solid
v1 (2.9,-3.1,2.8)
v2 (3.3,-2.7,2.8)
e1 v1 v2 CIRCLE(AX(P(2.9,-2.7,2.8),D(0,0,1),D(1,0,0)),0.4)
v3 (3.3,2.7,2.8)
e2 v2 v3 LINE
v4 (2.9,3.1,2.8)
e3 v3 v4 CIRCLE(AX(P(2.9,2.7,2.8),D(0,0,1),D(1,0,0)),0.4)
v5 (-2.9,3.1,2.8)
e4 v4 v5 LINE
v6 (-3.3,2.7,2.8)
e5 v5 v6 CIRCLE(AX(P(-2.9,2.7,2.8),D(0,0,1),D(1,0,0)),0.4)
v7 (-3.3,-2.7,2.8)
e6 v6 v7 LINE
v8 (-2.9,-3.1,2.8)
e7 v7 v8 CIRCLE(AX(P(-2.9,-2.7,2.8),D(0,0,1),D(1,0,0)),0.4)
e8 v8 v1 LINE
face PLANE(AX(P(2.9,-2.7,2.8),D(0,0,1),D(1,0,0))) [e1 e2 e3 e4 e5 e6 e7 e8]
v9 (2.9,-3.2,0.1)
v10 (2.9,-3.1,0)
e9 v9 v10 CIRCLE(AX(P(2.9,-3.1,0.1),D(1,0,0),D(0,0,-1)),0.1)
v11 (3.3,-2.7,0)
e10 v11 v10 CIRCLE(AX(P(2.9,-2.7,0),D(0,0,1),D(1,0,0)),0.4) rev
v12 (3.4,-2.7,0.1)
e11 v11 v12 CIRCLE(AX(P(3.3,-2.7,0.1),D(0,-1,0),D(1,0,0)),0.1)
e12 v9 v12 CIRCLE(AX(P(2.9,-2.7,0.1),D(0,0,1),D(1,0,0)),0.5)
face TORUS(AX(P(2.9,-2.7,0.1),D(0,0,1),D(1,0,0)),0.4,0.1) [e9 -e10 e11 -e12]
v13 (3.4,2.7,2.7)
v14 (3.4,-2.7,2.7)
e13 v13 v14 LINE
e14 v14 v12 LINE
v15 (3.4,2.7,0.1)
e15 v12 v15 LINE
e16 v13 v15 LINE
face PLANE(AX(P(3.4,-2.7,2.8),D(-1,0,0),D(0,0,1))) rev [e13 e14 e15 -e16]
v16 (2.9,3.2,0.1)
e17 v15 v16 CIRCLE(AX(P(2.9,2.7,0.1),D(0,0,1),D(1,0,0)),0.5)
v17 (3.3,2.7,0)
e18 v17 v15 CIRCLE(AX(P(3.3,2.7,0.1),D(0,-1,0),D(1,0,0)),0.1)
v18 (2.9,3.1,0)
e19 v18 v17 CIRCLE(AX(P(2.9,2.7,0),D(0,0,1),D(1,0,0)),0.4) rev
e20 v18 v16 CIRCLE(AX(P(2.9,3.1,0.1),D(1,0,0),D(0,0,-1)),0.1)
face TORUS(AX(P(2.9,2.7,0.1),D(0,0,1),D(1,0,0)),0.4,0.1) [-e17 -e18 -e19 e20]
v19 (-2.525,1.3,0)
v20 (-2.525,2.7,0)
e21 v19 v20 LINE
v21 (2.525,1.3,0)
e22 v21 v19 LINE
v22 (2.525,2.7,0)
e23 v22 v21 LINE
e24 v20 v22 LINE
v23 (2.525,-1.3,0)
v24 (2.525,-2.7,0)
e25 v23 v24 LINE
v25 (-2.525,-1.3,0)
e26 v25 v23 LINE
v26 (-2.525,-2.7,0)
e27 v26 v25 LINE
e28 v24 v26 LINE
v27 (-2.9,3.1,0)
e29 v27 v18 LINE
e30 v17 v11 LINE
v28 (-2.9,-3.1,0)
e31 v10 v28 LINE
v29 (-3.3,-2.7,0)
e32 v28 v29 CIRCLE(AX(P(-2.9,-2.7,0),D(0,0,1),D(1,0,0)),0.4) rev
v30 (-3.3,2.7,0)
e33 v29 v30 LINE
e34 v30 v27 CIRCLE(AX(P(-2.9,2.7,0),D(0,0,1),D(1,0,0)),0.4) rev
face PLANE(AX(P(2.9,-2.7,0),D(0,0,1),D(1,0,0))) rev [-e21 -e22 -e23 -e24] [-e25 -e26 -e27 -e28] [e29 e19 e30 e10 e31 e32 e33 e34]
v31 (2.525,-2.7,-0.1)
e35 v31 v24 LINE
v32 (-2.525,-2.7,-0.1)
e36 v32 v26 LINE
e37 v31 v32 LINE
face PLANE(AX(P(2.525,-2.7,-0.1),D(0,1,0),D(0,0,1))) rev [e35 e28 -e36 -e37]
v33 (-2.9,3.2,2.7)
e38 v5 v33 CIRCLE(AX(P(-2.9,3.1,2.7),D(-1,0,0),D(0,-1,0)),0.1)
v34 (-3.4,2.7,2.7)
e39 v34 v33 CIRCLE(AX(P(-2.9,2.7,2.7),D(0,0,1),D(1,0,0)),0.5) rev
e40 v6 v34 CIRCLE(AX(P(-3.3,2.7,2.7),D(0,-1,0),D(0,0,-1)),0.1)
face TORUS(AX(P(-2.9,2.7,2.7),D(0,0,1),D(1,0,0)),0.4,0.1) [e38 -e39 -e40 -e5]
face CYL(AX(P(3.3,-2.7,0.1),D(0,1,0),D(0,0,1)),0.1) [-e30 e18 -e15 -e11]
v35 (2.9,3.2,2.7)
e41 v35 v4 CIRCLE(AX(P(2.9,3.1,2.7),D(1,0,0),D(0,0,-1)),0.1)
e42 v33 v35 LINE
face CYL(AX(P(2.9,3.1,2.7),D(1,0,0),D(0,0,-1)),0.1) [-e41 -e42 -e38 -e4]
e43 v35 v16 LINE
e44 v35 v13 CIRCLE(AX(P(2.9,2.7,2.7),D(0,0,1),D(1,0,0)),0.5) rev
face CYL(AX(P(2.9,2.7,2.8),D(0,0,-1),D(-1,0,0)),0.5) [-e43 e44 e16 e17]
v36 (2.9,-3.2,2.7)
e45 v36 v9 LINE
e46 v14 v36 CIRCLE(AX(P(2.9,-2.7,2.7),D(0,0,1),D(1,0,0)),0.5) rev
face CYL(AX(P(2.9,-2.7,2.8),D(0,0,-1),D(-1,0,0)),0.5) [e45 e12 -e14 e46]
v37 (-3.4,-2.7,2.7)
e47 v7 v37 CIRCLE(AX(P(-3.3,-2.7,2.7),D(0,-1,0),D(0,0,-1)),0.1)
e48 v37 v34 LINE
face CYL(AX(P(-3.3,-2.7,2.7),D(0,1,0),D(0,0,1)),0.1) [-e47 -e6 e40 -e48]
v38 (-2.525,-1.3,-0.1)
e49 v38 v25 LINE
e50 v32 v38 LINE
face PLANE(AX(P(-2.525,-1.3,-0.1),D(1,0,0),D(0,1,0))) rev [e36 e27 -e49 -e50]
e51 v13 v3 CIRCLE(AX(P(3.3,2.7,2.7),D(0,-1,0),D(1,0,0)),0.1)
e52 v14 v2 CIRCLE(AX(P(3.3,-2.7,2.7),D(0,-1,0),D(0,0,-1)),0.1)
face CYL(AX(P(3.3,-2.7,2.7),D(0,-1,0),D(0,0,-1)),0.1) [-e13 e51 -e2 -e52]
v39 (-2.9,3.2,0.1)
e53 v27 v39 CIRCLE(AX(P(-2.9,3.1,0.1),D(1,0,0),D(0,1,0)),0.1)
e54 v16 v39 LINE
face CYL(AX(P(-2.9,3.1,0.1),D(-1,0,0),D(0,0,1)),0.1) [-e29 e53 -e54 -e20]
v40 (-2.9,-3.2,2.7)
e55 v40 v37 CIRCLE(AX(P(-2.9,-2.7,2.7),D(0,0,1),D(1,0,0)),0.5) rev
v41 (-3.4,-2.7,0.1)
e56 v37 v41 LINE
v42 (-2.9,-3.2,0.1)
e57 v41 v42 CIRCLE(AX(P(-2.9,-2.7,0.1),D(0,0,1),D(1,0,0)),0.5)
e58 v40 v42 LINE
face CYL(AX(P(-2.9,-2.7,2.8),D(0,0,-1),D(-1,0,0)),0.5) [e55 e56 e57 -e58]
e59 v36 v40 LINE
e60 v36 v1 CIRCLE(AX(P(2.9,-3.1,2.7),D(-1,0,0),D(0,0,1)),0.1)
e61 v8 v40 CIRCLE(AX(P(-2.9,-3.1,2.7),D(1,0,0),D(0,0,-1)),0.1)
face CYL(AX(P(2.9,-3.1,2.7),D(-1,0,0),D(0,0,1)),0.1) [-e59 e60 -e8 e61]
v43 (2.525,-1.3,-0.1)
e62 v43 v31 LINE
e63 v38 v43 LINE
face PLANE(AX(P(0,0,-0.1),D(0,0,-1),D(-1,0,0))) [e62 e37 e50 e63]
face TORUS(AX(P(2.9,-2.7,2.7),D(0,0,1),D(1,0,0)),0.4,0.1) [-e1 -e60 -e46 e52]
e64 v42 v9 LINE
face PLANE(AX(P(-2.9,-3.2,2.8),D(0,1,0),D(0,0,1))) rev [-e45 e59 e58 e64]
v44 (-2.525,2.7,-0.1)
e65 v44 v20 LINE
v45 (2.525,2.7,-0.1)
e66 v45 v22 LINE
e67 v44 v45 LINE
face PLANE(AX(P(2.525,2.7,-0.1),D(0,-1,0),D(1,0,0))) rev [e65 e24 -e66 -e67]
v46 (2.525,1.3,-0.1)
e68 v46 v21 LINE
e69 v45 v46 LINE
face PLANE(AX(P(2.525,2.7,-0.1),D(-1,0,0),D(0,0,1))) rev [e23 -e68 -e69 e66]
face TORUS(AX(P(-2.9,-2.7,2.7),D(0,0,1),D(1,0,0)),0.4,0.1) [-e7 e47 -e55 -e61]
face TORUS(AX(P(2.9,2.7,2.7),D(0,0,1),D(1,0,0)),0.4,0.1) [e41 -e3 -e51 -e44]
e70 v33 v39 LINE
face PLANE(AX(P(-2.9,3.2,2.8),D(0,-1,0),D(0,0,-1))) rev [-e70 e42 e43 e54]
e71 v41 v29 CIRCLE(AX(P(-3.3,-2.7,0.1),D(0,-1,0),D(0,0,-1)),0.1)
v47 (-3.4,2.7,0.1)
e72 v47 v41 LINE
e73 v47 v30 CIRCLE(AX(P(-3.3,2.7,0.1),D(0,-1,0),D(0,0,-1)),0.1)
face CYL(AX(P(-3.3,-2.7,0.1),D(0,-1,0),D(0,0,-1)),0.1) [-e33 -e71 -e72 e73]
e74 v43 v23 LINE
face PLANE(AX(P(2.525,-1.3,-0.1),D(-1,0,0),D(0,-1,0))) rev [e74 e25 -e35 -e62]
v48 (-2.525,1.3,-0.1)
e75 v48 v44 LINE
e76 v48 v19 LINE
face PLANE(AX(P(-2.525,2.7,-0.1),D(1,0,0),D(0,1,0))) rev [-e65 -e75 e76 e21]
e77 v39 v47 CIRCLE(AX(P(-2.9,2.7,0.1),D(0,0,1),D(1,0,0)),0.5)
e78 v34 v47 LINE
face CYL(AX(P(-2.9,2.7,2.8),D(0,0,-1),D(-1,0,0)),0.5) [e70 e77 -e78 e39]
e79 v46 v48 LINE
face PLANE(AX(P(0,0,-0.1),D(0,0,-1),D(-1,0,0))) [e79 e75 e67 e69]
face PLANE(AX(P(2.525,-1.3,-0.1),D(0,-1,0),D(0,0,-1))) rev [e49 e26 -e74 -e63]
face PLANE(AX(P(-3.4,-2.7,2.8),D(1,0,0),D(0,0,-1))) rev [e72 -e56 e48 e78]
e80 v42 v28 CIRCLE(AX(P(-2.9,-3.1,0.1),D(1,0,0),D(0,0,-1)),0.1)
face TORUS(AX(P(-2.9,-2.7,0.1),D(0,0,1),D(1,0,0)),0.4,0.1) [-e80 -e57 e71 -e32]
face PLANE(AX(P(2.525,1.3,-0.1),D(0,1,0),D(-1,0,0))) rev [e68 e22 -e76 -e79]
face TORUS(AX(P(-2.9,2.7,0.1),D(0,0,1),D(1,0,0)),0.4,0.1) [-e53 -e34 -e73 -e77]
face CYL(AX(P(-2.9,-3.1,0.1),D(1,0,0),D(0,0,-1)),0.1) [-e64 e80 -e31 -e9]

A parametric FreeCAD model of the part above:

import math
import FreeCAD as App
import Part
import Sketcher
Q = App.Units.Quantity


def edges_at(feature, points):
    """Names of the edges that pass closest to the given points."""
    edges = feature.Shape.Edges
    near = lambda p: min(range(len(edges)), key=lambda i: edges[i].distToShape(Part.Vertex(*p))[0])
    return sorted({f"Edge{near(p) + 1}" for p in points})

doc = App.newDocument("Part")
body = doc.addObject("PartDesign::Body", "Body")

sketch1 = body.newObject("Sketcher::SketchObject", "Sketch")
sketch1.AttachmentSupport = (doc.getObject("XY_Plane"), [""])
sketch1.MapMode = "FlatFace"
sketch1.addGeometry(Part.LineSegment(App.Vector(-2.9, -3.2, 0), App.Vector(2.9, -3.2, 0)), False)
sketch1.addGeometry(Part.ArcOfCircle(Part.Circle(App.Vector(2.9, -2.7, 0), App.Vector(0, 0, 1), 0.5), math.radians(-90), math.radians(0)), False)
sketch1.addGeometry(Part.LineSegment(App.Vector(3.4, -2.7, 0), App.Vector(3.4, 2.7, 0)), False)
sketch1.addGeometry(Part.ArcOfCircle(Part.Circle(App.Vector(2.9, 2.7, 0), App.Vector(0, 0, 1), 0.5), math.radians(0), math.radians(90)), False)
sketch1.addGeometry(Part.LineSegment(App.Vector(2.9, 3.2, 0), App.Vector(-2.9, 3.2, 0)), False)
sketch1.addGeometry(Part.ArcOfCircle(Part.Circle(App.Vector(-2.9, 2.7, 0), App.Vector(0, 0, 1), 0.5), math.radians(90), math.radians(180)), False)
sketch1.addGeometry(Part.LineSegment(App.Vector(-3.4, 2.7, 0), App.Vector(-3.4, -2.7, 0)), False)
sketch1.addGeometry(Part.ArcOfCircle(Part.Circle(App.Vector(-2.9, -2.7, 0), App.Vector(0, 0, 1), 0.5), math.radians(180), math.radians(270)), False)
sketch1.addConstraint(Sketcher.Constraint("Tangent", 0, 2, 1, 1))
sketch1.addConstraint(Sketcher.Constraint("Tangent", 1, 2, 2, 1))
sketch1.addConstraint(Sketcher.Constraint("Tangent", 2, 2, 3, 1))
sketch1.addConstraint(Sketcher.Constraint("Tangent", 3, 2, 4, 1))
sketch1.addConstraint(Sketcher.Constraint("Tangent", 4, 2, 5, 1))
sketch1.addConstraint(Sketcher.Constraint("Tangent", 5, 2, 6, 1))
sketch1.addConstraint(Sketcher.Constraint("Tangent", 6, 2, 7, 1))
sketch1.addConstraint(Sketcher.Constraint("Tangent", 7, 2, 0, 1))
sketch1.addConstraint(Sketcher.Constraint("Horizontal", 0))
sketch1.addConstraint(Sketcher.Constraint("Vertical", 2))
sketch1.addConstraint(Sketcher.Constraint("Horizontal", 4))
sketch1.addConstraint(Sketcher.Constraint("Vertical", 6))
sketch1.addConstraint(Sketcher.Constraint("Equal", 1, 3))
sketch1.addConstraint(Sketcher.Constraint("Equal", 3, 5))
sketch1.addConstraint(Sketcher.Constraint("Equal", 5, 7))
sketch1.addConstraint(Sketcher.Constraint("Symmetric", 1, 3, 5, 3, -1, 1))
sketch1.addConstraint(Sketcher.Constraint("Radius", 1, Q("0.5 mm")))
sketch1.addConstraint(Sketcher.Constraint("DistanceX", 0, 1, 0, 2, Q("5.8 mm")))
sketch1.addConstraint(Sketcher.Constraint("DistanceY", 2, 1, 2, 2, Q("5.4 mm")))
pad1 = body.newObject("PartDesign::Pad", "Pad")
pad1.Profile = sketch1
pad1.Length = 2.8

sketch2 = body.newObject("Sketcher::SketchObject", "Sketch001")
sketch2.AttachmentSupport = (doc.getObject("XY_Plane"), [""])
sketch2.MapMode = "FlatFace"
sketch2.addGeometry(Part.LineSegment(App.Vector(2.5, 2.7, 0), App.Vector(2.5, 1.3, 0)), False)
sketch2.addGeometry(Part.LineSegment(App.Vector(2.5, 1.3, 0), App.Vector(-2.5, 1.3, 0)), False)
sketch2.addGeometry(Part.LineSegment(App.Vector(-2.5, 1.3, 0), App.Vector(-2.5, 2.7, 0)), False)
sketch2.addGeometry(Part.LineSegment(App.Vector(-2.5, 2.7, 0), App.Vector(2.5, 2.7, 0)), False)
sketch2.addGeometry(Part.LineSegment(App.Vector(2.5, -1.3, 0), App.Vector(2.5, -2.7, 0)), False)
sketch2.addGeometry(Part.LineSegment(App.Vector(2.5, -2.7, 0), App.Vector(-2.5, -2.7, 0)), False)
sketch2.addGeometry(Part.LineSegment(App.Vector(-2.5, -2.7, 0), App.Vector(-2.5, -1.3, 0)), False)
sketch2.addGeometry(Part.LineSegment(App.Vector(-2.5, -1.3, 0), App.Vector(2.5, -1.3, 0)), False)
sketch2.addConstraint(Sketcher.Constraint("Coincident", 0, 2, 1, 1))
sketch2.addConstraint(Sketcher.Constraint("Coincident", 1, 2, 2, 1))
sketch2.addConstraint(Sketcher.Constraint("Coincident", 2, 2, 3, 1))
sketch2.addConstraint(Sketcher.Constraint("Coincident", 3, 2, 0, 1))
sketch2.addConstraint(Sketcher.Constraint("Coincident", 4, 2, 5, 1))
sketch2.addConstraint(Sketcher.Constraint("Coincident", 5, 2, 6, 1))
sketch2.addConstraint(Sketcher.Constraint("Coincident", 6, 2, 7, 1))
sketch2.addConstraint(Sketcher.Constraint("Coincident", 7, 2, 4, 1))
sketch2.addConstraint(Sketcher.Constraint("Vertical", 0))
sketch2.addConstraint(Sketcher.Constraint("Horizontal", 1))
sketch2.addConstraint(Sketcher.Constraint("Vertical", 2))
sketch2.addConstraint(Sketcher.Constraint("Horizontal", 3))
sketch2.addConstraint(Sketcher.Constraint("Vertical", 4))
sketch2.addConstraint(Sketcher.Constraint("Horizontal", 5))
sketch2.addConstraint(Sketcher.Constraint("Vertical", 6))
sketch2.addConstraint(Sketcher.Constraint("Horizontal", 7))
sketch2.addConstraint(Sketcher.Constraint("Symmetric", 2, 2, 4, 2, -1, 1))
sketch2.addConstraint(Sketcher.Constraint("Symmetric", 0, 2, 6, 2, -1, 1))
sketch2.addConstraint(Sketcher.Constraint("Vertical", 3, 2, 4, 2))
sketch2.addConstraint(Sketcher.Constraint("DistanceY", 0, 2, 0, 1, Q("1.4 mm")))
sketch2.addConstraint(Sketcher.Constraint("DistanceY", 4, 2, 0, 2, Q("4 mm")))
sketch2.addConstraint(Sketcher.Constraint("DistanceX", 1, 2, 1, 1, Q("5.05 mm")))
pad2 = body.newObject("PartDesign::Pad", "Pad001")
pad2.Profile = sketch2
pad2.Length = 0.1
pad2.Reversed = True
doc.recompute()

fillet = body.newObject("PartDesign::Fillet", "Fillet")
fillet.Base = (pad2, edges_at(pad2, [
    (3.254, 3.054, 2.8),
    (3.4, 0, 0),
    (3.254, -3.054, 0),
    (0, 3.2, 2.8),
    (-3.254, 3.054, 2.8),
    (-3.4, 0, 2.8),
    (-3.254, -3.054, 2.8),
    (0, -3.2, 2.8),
    (3.254, -3.054, 2.8),
    (3.4, 0, 2.8),
    (0, -3.2, 0),
    (-3.254, -3.054, 0),
    (-3.4, 0, 0),
    (-3.254, 3.054, 0),
    (0, 3.2, 0),
    (3.254, 3.054, 0),
]))
fillet.Radius = 0.1

doc.recompute()
